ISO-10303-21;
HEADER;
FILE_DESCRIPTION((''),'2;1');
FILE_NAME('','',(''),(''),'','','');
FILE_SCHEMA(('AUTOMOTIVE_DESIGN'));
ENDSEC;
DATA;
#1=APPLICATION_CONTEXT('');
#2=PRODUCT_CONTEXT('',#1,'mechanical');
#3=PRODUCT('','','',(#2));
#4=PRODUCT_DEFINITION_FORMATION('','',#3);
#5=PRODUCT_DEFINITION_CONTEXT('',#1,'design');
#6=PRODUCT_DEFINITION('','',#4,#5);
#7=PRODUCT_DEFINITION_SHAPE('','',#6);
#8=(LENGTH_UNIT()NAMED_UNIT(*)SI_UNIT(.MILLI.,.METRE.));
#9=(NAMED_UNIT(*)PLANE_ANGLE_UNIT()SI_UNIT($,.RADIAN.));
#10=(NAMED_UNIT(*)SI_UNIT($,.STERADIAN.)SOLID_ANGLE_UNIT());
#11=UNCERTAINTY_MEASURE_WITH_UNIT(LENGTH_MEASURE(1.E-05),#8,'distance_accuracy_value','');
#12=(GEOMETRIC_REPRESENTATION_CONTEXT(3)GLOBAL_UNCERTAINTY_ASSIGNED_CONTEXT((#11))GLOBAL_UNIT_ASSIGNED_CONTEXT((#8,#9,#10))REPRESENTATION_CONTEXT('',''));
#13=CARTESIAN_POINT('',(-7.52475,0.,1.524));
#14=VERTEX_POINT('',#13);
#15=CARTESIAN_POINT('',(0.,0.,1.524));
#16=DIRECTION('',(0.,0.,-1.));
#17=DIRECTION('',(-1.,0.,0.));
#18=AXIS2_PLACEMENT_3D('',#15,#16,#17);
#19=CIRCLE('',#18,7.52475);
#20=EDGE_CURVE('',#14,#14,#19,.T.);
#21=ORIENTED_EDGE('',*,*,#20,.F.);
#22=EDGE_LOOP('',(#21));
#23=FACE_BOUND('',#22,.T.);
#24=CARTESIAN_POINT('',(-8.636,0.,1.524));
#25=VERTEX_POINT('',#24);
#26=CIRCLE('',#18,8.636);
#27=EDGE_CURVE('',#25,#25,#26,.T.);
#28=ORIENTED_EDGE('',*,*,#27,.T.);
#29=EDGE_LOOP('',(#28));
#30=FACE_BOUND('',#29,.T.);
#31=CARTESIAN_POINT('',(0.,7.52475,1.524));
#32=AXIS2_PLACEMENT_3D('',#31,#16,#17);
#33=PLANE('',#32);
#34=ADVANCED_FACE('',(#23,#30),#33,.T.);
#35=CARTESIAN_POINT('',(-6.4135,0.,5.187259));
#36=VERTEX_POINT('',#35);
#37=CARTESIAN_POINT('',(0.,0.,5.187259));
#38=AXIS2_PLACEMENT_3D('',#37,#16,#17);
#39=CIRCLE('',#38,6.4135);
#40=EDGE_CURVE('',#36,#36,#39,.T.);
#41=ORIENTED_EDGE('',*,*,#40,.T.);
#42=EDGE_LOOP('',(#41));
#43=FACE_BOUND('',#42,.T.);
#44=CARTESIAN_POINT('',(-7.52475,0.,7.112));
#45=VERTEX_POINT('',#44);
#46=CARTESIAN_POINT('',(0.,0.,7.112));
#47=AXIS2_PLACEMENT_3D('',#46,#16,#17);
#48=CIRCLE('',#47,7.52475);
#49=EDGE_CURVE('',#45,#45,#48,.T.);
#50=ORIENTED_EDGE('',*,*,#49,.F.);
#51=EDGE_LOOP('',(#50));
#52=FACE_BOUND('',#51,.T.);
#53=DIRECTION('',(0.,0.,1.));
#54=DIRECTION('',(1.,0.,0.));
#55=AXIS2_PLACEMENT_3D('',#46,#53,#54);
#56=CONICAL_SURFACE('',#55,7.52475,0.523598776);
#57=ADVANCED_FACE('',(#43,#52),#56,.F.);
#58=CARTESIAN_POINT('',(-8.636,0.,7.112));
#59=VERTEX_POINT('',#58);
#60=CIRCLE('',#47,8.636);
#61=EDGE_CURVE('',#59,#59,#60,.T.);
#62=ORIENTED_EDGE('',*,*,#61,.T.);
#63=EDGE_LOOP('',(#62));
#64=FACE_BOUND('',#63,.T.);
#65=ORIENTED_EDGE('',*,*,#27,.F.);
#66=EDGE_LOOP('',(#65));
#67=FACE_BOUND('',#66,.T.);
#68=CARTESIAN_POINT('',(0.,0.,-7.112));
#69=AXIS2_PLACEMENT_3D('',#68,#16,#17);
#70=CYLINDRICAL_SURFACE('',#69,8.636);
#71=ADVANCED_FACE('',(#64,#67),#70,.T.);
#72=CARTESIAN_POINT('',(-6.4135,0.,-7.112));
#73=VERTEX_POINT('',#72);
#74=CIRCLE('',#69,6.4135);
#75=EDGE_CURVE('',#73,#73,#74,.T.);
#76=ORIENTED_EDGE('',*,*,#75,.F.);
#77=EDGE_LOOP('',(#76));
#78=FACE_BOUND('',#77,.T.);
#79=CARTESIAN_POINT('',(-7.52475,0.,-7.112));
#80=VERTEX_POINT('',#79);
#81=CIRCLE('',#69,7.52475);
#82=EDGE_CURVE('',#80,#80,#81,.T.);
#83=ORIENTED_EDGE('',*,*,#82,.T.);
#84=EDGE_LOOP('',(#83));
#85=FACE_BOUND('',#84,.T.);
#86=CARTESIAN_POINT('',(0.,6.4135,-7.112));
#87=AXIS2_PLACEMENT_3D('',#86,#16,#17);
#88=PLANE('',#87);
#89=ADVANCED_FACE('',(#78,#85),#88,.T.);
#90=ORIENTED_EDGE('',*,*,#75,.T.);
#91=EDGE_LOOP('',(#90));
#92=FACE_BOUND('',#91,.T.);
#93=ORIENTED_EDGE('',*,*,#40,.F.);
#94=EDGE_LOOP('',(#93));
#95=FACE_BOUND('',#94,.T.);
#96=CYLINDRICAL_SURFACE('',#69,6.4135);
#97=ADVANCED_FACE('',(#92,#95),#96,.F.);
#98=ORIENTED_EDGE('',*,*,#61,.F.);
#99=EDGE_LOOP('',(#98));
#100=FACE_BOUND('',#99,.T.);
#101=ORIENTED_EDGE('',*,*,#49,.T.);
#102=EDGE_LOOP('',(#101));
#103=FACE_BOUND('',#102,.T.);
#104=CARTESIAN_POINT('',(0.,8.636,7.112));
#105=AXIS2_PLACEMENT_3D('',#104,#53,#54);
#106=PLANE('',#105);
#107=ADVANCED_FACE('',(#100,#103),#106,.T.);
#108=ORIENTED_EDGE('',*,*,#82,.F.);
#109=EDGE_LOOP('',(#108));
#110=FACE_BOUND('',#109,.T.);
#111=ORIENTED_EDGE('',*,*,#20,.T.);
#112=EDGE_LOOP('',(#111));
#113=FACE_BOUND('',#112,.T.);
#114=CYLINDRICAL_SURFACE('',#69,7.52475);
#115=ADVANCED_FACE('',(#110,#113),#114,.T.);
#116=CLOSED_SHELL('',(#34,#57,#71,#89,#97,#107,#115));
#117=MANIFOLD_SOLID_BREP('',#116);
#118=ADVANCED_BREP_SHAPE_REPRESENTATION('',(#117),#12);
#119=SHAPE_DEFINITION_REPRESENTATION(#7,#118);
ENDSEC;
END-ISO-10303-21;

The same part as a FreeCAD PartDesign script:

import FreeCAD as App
import Part
import Sketcher
Q = App.Units.Quantity


def add_polygon(sketch, points):
    """Adds a closed chain of lines whose ends are joined by coincident constraints."""
    first, n = sketch.GeometryCount, len(points)
    for a, b in zip(points, points[1:] + points[:1]):
        sketch.addGeometry(Part.LineSegment(App.Vector(*a, 0), App.Vector(*b, 0)), False)
    for i in range(n):
        sketch.addConstraint(Sketcher.Constraint("Coincident", first + i, 2, first + (i + 1) % n, 1))

doc = App.newDocument("Part")
params = doc.addObject("Spreadsheet::Sheet", "Params")
for row, (alias, value) in enumerate([
    ("sketch1_height", "0.34 in"),
    ("sketch1_height2", "0.22 in"),
    ("revolution_angle", "360 deg"),
], start=1):
    params.set(f"A{row}", alias)
    params.set(f"B{row}", "=" + value)
    params.setAlias(f"B{row}", alias)

body = doc.addObject("PartDesign::Body", "Body")

# Sketch on YZ plane
sketch1 = body.newObject("Sketcher::SketchObject", "Sketch")
sketch1.AttachmentSupport = (doc.getObject("YZ_Plane"), [""])
sketch1.MapMode = "FlatFace"
add_polygon(sketch1, [(7.52475, 7.112), (6.4135, 5.187259), (6.4135, -7.112), (7.52475, -7.112), (7.52475, 1.524), (8.636, 1.524), (8.636, 7.112)])  # lines 0-6
sketch1.addConstraint(Sketcher.Constraint("Vertical", 1))
sketch1.addConstraint(Sketcher.Constraint("Horizontal", 2))
sketch1.addConstraint(Sketcher.Constraint("Vertical", 3))
sketch1.addConstraint(Sketcher.Constraint("Horizontal", 4))
sketch1.addConstraint(Sketcher.Constraint("Vertical", 5))
sketch1.addConstraint(Sketcher.Constraint("Horizontal", 6))
sketch1.addConstraint(Sketcher.Constraint("Symmetric", 2, 2, 6, 2, -1))
sketch1.addConstraint(Sketcher.Constraint("Equal", 2, 4))
sketch1.addConstraint(Sketcher.Constraint("Angle", 0, Q("-120 deg")))
sketch1.addConstraint(Sketcher.Constraint("DistanceY", 3, 1, 3, 2, Q("0.34 in")))
sketch1.addConstraint(Sketcher.Constraint("DistanceY", 5, 1, 5, 2, Q("0.22 in")))
sketch1.addConstraint(Sketcher.Constraint("DistanceX", -1, 1, 4, 2, Q("0.34 in")))
sketch1.addConstraint(Sketcher.Constraint("Distance", 0, Q("0.0875 in")))
sketch1.setExpression("Constraints[16]", "Params.sketch1_height")
sketch1.setExpression("Constraints[17]", "Params.sketch1_height2")
revolution = body.newObject("PartDesign::Revolution", "Revolution")
revolution.Profile = sketch1
revolution.ReferenceAxis = (sketch1, ["V_Axis"])
revolution.setExpression("Angle", "Params.revolution_angle")

doc.recompute()
